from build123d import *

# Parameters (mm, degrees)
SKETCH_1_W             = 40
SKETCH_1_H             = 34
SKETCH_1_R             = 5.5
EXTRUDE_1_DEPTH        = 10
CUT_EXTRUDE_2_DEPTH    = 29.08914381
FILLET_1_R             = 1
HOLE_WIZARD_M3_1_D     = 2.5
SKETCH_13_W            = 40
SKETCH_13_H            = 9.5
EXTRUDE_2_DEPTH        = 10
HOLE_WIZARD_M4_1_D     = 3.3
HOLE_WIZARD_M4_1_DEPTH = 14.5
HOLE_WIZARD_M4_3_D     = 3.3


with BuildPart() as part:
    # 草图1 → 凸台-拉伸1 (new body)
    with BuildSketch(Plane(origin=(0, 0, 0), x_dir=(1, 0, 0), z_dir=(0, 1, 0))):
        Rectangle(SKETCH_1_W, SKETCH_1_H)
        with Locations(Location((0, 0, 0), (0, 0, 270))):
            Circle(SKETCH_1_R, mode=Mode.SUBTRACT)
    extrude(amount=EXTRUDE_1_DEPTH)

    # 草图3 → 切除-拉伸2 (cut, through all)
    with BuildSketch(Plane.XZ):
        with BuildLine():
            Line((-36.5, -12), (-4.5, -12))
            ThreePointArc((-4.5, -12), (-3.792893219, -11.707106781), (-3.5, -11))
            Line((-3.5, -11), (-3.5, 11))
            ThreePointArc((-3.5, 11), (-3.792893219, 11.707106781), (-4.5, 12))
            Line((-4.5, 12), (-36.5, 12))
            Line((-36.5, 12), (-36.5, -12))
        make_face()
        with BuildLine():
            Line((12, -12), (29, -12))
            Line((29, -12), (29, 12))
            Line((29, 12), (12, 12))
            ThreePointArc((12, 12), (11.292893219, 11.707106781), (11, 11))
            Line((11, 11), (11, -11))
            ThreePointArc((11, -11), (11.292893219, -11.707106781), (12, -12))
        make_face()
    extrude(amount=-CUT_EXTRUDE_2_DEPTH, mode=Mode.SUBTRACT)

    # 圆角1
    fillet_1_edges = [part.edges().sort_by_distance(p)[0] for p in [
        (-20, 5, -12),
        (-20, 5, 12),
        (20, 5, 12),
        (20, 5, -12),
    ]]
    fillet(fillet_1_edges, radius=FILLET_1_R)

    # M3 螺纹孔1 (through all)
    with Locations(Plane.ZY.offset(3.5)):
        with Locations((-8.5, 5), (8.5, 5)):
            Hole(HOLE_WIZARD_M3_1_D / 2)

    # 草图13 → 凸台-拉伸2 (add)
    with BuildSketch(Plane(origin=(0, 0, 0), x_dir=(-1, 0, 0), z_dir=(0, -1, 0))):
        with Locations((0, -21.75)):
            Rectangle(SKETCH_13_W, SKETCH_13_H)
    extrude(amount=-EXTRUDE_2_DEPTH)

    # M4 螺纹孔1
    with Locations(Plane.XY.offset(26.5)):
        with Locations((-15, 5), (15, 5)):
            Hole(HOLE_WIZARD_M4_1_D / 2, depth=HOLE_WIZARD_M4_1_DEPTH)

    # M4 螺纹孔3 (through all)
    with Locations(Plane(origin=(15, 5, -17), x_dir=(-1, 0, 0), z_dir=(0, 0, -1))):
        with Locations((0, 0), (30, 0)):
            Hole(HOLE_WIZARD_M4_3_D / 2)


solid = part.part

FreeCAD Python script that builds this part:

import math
import FreeCAD as App
import Part
import Sketcher
from FreeCAD import Vector


def edges_at(feature, points):
    """Names of the edges that pass closest to the given points."""
    edges = feature.Shape.Edges
    near = lambda p: min(range(len(edges)), key=lambda i: edges[i].distToShape(Part.Vertex(*p))[0])
    return sorted({f"Edge{near(p) + 1}" for p in points})

doc = App.newDocument("Part")
body = doc.addObject("PartDesign::Body", "Body")

# Sketch on XZ plane
sketch1 = body.newObject("Sketcher::SketchObject", "Sketch")
sketch1.AttachmentSupport = (doc.getObject("XZ_Plane"), [""])
sketch1.MapMode = "FlatFace"
sketch1.addGeometry(Part.LineSegment(Vector(-20, -17, 0), Vector(-20, 17, 0)), False)
sketch1.addGeometry(Part.LineSegment(Vector(-20, 17, 0), Vector(20, 17, 0)), False)
sketch1.addGeometry(Part.LineSegment(Vector(20, 17, 0), Vector(20, -17, 0)), False)
sketch1.addGeometry(Part.LineSegment(Vector(20, -17, 0), Vector(-20, -17, 0)), False)
sketch1.addGeometry(Part.Circle(Vector(0, 0, 0), Vector(0, 0, 1), 6), False)
sketch1.addConstraint(Sketcher.Constraint("Coincident", 0, 2, 1, 1))
sketch1.addConstraint(Sketcher.Constraint("Coincident", 1, 2, 2, 1))
sketch1.addConstraint(Sketcher.Constraint("Coincident", 2, 2, 3, 1))
sketch1.addConstraint(Sketcher.Constraint("Coincident", 3, 2, 0, 1))
sketch1.addConstraint(Sketcher.Constraint("Vertical", 0))
sketch1.addConstraint(Sketcher.Constraint("Horizontal", 1))
sketch1.addConstraint(Sketcher.Constraint("Vertical", 2))
sketch1.addConstraint(Sketcher.Constraint("Horizontal", 3))
sketch1.addConstraint(Sketcher.Constraint("Coincident", 4, 3, -1, 1))
sketch1.addConstraint(Sketcher.Constraint("Symmetric", 0, 2, 2, 2, -1, 1))
sketch1.addConstraint(Sketcher.Constraint("Diameter", 4, 11.0))
sketch1.addConstraint(Sketcher.Constraint("DistanceX", 1, 1, 1, 2, 40.0))
sketch1.addConstraint(Sketcher.Constraint("DistanceY", 0, 1, 0, 2, 34.0))
pad1 = body.newObject("PartDesign::Pad", "Pad")
pad1.Profile = sketch1
pad1.Length = 10
pad1.Reversed = True

# Sketch on XZ plane
sketch2 = body.newObject("Sketcher::SketchObject", "Sketch001")
sketch2.AttachmentSupport = (doc.getObject("XZ_Plane"), [""])
sketch2.MapMode = "FlatFace"
sketch2.addGeometry(Part.LineSegment(Vector(-36.5, -12, 0), Vector(-4.5, -12, 0)), False)
sketch2.addGeometry(Part.ArcOfCircle(Part.Circle(Vector(-4.5, -11, 0), Vector(0, 0, 1), 1), math.radians(-90), math.radians(0)), False)
sketch2.addGeometry(Part.LineSegment(Vector(-3.5, -11, 0), Vector(-3.5, 11, 0)), False)
sketch2.addGeometry(Part.ArcOfCircle(Part.Circle(Vector(-4.5, 11, 0), Vector(0, 0, 1), 1), math.radians(0), math.radians(90)), False)
sketch2.addGeometry(Part.LineSegment(Vector(-4.5, 12, 0), Vector(-36.5, 12, 0)), False)
sketch2.addGeometry(Part.LineSegment(Vector(-36.5, 12, 0), Vector(-36.5, -12, 0)), False)
sketch2.addGeometry(Part.LineSegment(Vector(12, -12, 0), Vector(29, -12, 0)), False)
sketch2.addGeometry(Part.LineSegment(Vector(29, -12, 0), Vector(29, 12, 0)), False)
sketch2.addGeometry(Part.LineSegment(Vector(29, 12, 0), Vector(12, 12, 0)), False)
sketch2.addGeometry(Part.ArcOfCircle(Part.Circle(Vector(12, 11, 0), Vector(0, 0, 1), 1), math.radians(90), math.radians(180)), False)
sketch2.addGeometry(Part.LineSegment(Vector(11, 11, 0), Vector(11, -11, 0)), False)
sketch2.addGeometry(Part.ArcOfCircle(Part.Circle(Vector(12, -11, 0), Vector(0, 0, 1), 1), math.radians(-180), math.radians(-90)), False)
sketch2.addConstraint(Sketcher.Constraint("Tangent", 0, 2, 1, 1))
sketch2.addConstraint(Sketcher.Constraint("Tangent", 1, 2, 2, 1))
sketch2.addConstraint(Sketcher.Constraint("Tangent", 2, 2, 3, 1))
sketch2.addConstraint(Sketcher.Constraint("Tangent", 3, 2, 4, 1))
sketch2.addConstraint(Sketcher.Constraint("Coincident", 4, 2, 5, 1))
sketch2.addConstraint(Sketcher.Constraint("Coincident", 5, 2, 0, 1))
sketch2.addConstraint(Sketcher.Constraint("Coincident", 6, 2, 7, 1))
sketch2.addConstraint(Sketcher.Constraint("Coincident", 7, 2, 8, 1))
sketch2.addConstraint(Sketcher.Constraint("Tangent", 8, 2, 9, 1))
sketch2.addConstraint(Sketcher.Constraint("Tangent", 9, 2, 10, 1))
sketch2.addConstraint(Sketcher.Constraint("Tangent", 10, 2, 11, 1))
sketch2.addConstraint(Sketcher.Constraint("Tangent", 11, 2, 6, 1))
sketch2.addConstraint(Sketcher.Constraint("Horizontal", 0))
sketch2.addConstraint(Sketcher.Constraint("Vertical", 2))
sketch2.addConstraint(Sketcher.Constraint("Horizontal", 4))
sketch2.addConstraint(Sketcher.Constraint("Vertical", 5))
sketch2.addConstraint(Sketcher.Constraint("Horizontal", 6))
sketch2.addConstraint(Sketcher.Constraint("Vertical", 7))
sketch2.addConstraint(Sketcher.Constraint("Horizontal", 8))
sketch2.addConstraint(Sketcher.Constraint("Vertical", 10))
sketch2.addConstraint(Sketcher.Constraint("Equal", 1, 3))
sketch2.addConstraint(Sketcher.Constraint("Equal", 3, 9))
sketch2.addConstraint(Sketcher.Constraint("Equal", 9, 11))
sketch2.addConstraint(Sketcher.Constraint("Horizontal", 3, 3, 9, 3))
sketch2.addConstraint(Sketcher.Constraint("Horizontal", 1, 3, 11, 3))
sketch2.addConstraint(Sketcher.Constraint("Radius", 1, 1.0))
sketch2.addConstraint(Sketcher.Constraint("DistanceX", 0, 1, 0, 2, 32.0))
sketch2.addConstraint(Sketcher.Constraint("DistanceX", 6, 1, 6, 2, 17.0))
sketch2.addConstraint(Sketcher.Constraint("DistanceY", 2, 1, 2, 2, 22.0))
sketch2.addConstraint(Sketcher.Constraint("DistanceY", 1, 3, -1, 1, 11.0))
sketch2.addConstraint(Sketcher.Constraint("DistanceX", -1, 1, 9, 3, 12.0))
sketch2.addConstraint(Sketcher.Constraint("DistanceX", 1, 3, -1, 1, 4.5))
pocket1 = body.newObject("PartDesign::Pocket", "Pocket")
pocket1.Profile = sketch2
pocket1.Type = "ThroughAll"
doc.recompute()

fillet = body.newObject("PartDesign::Fillet", "Fillet")
fillet.Base = (pocket1, edges_at(pocket1, [
    (-20, 5, -12),
    (-20, 5, 12),
    (20, 5, 12),
    (20, 5, -12),
]))
fillet.Radius = 1

# Sketch on YZ plane
sketch3 = body.newObject("Sketcher::SketchObject", "Sketch002")
sketch3.AttachmentSupport = (doc.getObject("YZ_Plane"), [""])
sketch3.MapMode = "FlatFace"
sketch3.AttachmentOffset = App.Placement(Vector(0, 0, -3.5), App.Rotation())
sketch3.addGeometry(Part.Circle(Vector(5, -8.5, 0), Vector(0, 0, 1), 1.2), False)
sketch3.addGeometry(Part.Circle(Vector(5, 8.5, 0), Vector(0, 0, 1), 1.2), False)
sketch3.addConstraint(Sketcher.Constraint("Equal", 0, 1))
sketch3.addConstraint(Sketcher.Constraint("Symmetric", 0, 3, 1, 3, -1))
sketch3.addConstraint(Sketcher.Constraint("Diameter", 0, 2.5))
sketch3.addConstraint(Sketcher.Constraint("DistanceX", -1, 1, 0, 3, 5.0))
sketch3.addConstraint(Sketcher.Constraint("DistanceY", 0, 3, 1, 3, 17.0))
doc.recompute()
hole = body.newObject("PartDesign::Hole", "Hole")
hole.Profile = sketch3
hole.ThreadType = "None"
hole.Diameter = 2.5
hole.DepthType = "ThroughAll"
hole.Reversed = True

# Sketch on XZ plane
sketch4 = body.newObject("Sketcher::SketchObject", "Sketch003")
sketch4.AttachmentSupport = (doc.getObject("XZ_Plane"), [""])
sketch4.MapMode = "FlatFace"
sketch4.addGeometry(Part.LineSegment(Vector(20, 17, 0), Vector(20, 26, 0)), False)
sketch4.addGeometry(Part.LineSegment(Vector(20, 26, 0), Vector(-20, 26, 0)), False)
sketch4.addGeometry(Part.LineSegment(Vector(-20, 26, 0), Vector(-20, 17, 0)), False)
sketch4.addGeometry(Part.LineSegment(Vector(-20, 17, 0), Vector(20, 17, 0)), False)
sketch4.addConstraint(Sketcher.Constraint("Coincident", 0, 2, 1, 1))
sketch4.addConstraint(Sketcher.Constraint("Coincident", 1, 2, 2, 1))
sketch4.addConstraint(Sketcher.Constraint("Coincident", 2, 2, 3, 1))
sketch4.addConstraint(Sketcher.Constraint("Coincident", 3, 2, 0, 1))
sketch4.addConstraint(Sketcher.Constraint("Vertical", 0))
sketch4.addConstraint(Sketcher.Constraint("Horizontal", 1))
sketch4.addConstraint(Sketcher.Constraint("Vertical", 2))
sketch4.addConstraint(Sketcher.Constraint("Horizontal", 3))
sketch4.addConstraint(Sketcher.Constraint("DistanceX", 1, 2, 1, 1, 40.0))
sketch4.addConstraint(Sketcher.Constraint("DistanceY", 0, 1, 0, 2, 9.5))
sketch4.addConstraint(Sketcher.Constraint("DistanceX", -1, 1, 0, 2, 20.0))
sketch4.addConstraint(Sketcher.Constraint("DistanceY", -1, 1, 2, 2, 17.0))
pad2 = body.newObject("PartDesign::Pad", "Pad001")
pad2.Profile = sketch4
pad2.Length = 10
pad2.Reversed = True

# Sketch on XY plane
sketch5 = body.newObject("Sketcher::SketchObject", "Sketch004")
sketch5.AttachmentSupport = (doc.getObject("XY_Plane"), [""])
sketch5.MapMode = "FlatFace"
sketch5.AttachmentOffset = App.Placement(Vector(0, 0, 26.5), App.Rotation())
sketch5.addGeometry(Part.Circle(Vector(-15, 5, 0), Vector(0, 0, 1), 1.6), False)
sketch5.addGeometry(Part.Circle(Vector(15, 5, 0), Vector(0, 0, 1), 1.6), False)
sketch5.addConstraint(Sketcher.Constraint("Equal", 0, 1))
sketch5.addConstraint(Sketcher.Constraint("Symmetric", 0, 3, 1, 3, -2))
sketch5.addConstraint(Sketcher.Constraint("Diameter", 0, 3.3))
sketch5.addConstraint(Sketcher.Constraint("DistanceX", 0, 3, -1, 1, 15.0))
sketch5.addConstraint(Sketcher.Constraint("DistanceY", -1, 1, 0, 3, 5.0))
doc.recompute()
hole2 = body.newObject("PartDesign::Hole", "Hole001")
hole2.Profile = sketch5
hole2.ThreadType = "None"
hole2.Diameter = 3.3
hole2.DepthType = "Dimension"
hole2.Depth = 14.5
hole2.DrillPoint = "Flat"

# Sketch on XY plane
sketch6 = body.newObject("Sketcher::SketchObject", "Sketch005")
sketch6.AttachmentSupport = (doc.getObject("XY_Plane"), [""])
sketch6.MapMode = "FlatFace"
sketch6.AttachmentOffset = App.Placement(Vector(0, 0, -17), App.Rotation())
sketch6.addGeometry(Part.Circle(Vector(15, 5, 0), Vector(0, 0, 1), 1.6), False)
sketch6.addGeometry(Part.Circle(Vector(-15, 5, 0), Vector(0, 0, 1), 1.6), False)
sketch6.addConstraint(Sketcher.Constraint("Equal", 0, 1))
sketch6.addConstraint(Sketcher.Constraint("Symmetric", 0, 3, 1, 3, -2))
sketch6.addConstraint(Sketcher.Constraint("Diameter", 0, 3.3))
sketch6.addConstraint(Sketcher.Constraint("DistanceX", -1, 1, 0, 3, 15.0))
sketch6.addConstraint(Sketcher.Constraint("DistanceY", -1, 1, 0, 3, 5.0))
doc.recompute()
hole3 = body.newObject("PartDesign::Hole", "Hole002")
hole3.Profile = sketch6
hole3.ThreadType = "None"
hole3.Diameter = 3.3
hole3.DepthType = "ThroughAll"
hole3.Reversed = True

doc.recompute()
